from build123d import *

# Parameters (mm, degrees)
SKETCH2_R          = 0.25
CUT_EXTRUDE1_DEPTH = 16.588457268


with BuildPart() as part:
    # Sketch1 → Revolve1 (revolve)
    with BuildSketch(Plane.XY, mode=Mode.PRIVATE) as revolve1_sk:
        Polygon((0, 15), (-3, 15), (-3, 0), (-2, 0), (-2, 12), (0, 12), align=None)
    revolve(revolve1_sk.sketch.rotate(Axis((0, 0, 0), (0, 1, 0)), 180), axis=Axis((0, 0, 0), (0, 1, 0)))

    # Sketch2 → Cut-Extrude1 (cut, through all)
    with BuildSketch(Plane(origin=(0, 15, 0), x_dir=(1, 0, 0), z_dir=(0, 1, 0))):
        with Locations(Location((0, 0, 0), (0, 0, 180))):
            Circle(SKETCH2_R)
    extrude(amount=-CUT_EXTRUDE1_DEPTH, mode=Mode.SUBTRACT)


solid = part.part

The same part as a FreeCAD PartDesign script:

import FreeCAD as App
import Part
import Sketcher
from FreeCAD import Vector
Q = App.Units.Quantity


def add_polygon(sketch, points):
    """Adds a closed chain of lines whose ends are joined by coincident constraints."""
    first, n = sketch.GeometryCount, len(points)
    for a, b in zip(points, points[1:] + points[:1]):
        sketch.addGeometry(Part.LineSegment(App.Vector(*a, 0), App.Vector(*b, 0)), False)
    for i in range(n):
        sketch.addConstraint(Sketcher.Constraint("Coincident", first + i, 2, first + (i + 1) % n, 1))

doc = App.newDocument("Part")
body = doc.addObject("PartDesign::Body", "Body")

sketch1 = body.newObject("Sketcher::SketchObject", "Sketch")
sketch1.AttachmentSupport = (doc.getObject("XY_Plane"), [""])
sketch1.MapMode = "FlatFace"
add_polygon(sketch1, [(0, 15), (-3, 15), (-3, 0), (-2, 0), (-2, 12), (0, 12)])
sketch1.addConstraint([
    Sketcher.Constraint("Horizontal", 0),
    Sketcher.Constraint("Vertical", 1),
    Sketcher.Constraint("Horizontal", 2),
    Sketcher.Constraint("Vertical", 3),
    Sketcher.Constraint("Horizontal", 4),
    Sketcher.Constraint("Vertical", 5),
    Sketcher.Constraint("PointOnObject", 1, 2, -1),
    Sketcher.Constraint("PointOnObject", 4, 2, -2),
    Sketcher.Constraint("Equal", 0, 5),
    Sketcher.Constraint("DistanceX", 0, 2, 0, 1, Q("3 mm")),
    Sketcher.Constraint("DistanceX", 2, 1, 2, 2, Q("1 mm")),
    Sketcher.Constraint("DistanceY", 1, 2, 1, 1, Q("15 mm")),
])
revolution = body.newObject("PartDesign::Revolution", "Revolution")
revolution.Profile = sketch1
revolution.ReferenceAxis = (sketch1, ["V_Axis"])
revolution.Angle = 360

sketch2 = body.newObject("Sketcher::SketchObject", "Sketch001")
sketch2.AttachmentSupport = (doc.getObject("XZ_Plane"), [""])
sketch2.MapMode = "FlatFace"
sketch2.AttachmentOffset = App.Placement(Vector(0, 0, -15), App.Rotation())
sketch2.addGeometry(Part.Circle(Vector(0, 0, 0), Vector(0, 0, 1), 0.25), False)
sketch2.addConstraint([
    Sketcher.Constraint("Coincident", 0, 3, -1, 1),
    Sketcher.Constraint("Diameter", 0, Q("0.5 mm")),
])
pocket1 = body.newObject("PartDesign::Pocket", "Pocket")
pocket1.Profile = sketch2
pocket1.Type = "ThroughAll"
pocket1.Reversed = True

doc.recompute()
